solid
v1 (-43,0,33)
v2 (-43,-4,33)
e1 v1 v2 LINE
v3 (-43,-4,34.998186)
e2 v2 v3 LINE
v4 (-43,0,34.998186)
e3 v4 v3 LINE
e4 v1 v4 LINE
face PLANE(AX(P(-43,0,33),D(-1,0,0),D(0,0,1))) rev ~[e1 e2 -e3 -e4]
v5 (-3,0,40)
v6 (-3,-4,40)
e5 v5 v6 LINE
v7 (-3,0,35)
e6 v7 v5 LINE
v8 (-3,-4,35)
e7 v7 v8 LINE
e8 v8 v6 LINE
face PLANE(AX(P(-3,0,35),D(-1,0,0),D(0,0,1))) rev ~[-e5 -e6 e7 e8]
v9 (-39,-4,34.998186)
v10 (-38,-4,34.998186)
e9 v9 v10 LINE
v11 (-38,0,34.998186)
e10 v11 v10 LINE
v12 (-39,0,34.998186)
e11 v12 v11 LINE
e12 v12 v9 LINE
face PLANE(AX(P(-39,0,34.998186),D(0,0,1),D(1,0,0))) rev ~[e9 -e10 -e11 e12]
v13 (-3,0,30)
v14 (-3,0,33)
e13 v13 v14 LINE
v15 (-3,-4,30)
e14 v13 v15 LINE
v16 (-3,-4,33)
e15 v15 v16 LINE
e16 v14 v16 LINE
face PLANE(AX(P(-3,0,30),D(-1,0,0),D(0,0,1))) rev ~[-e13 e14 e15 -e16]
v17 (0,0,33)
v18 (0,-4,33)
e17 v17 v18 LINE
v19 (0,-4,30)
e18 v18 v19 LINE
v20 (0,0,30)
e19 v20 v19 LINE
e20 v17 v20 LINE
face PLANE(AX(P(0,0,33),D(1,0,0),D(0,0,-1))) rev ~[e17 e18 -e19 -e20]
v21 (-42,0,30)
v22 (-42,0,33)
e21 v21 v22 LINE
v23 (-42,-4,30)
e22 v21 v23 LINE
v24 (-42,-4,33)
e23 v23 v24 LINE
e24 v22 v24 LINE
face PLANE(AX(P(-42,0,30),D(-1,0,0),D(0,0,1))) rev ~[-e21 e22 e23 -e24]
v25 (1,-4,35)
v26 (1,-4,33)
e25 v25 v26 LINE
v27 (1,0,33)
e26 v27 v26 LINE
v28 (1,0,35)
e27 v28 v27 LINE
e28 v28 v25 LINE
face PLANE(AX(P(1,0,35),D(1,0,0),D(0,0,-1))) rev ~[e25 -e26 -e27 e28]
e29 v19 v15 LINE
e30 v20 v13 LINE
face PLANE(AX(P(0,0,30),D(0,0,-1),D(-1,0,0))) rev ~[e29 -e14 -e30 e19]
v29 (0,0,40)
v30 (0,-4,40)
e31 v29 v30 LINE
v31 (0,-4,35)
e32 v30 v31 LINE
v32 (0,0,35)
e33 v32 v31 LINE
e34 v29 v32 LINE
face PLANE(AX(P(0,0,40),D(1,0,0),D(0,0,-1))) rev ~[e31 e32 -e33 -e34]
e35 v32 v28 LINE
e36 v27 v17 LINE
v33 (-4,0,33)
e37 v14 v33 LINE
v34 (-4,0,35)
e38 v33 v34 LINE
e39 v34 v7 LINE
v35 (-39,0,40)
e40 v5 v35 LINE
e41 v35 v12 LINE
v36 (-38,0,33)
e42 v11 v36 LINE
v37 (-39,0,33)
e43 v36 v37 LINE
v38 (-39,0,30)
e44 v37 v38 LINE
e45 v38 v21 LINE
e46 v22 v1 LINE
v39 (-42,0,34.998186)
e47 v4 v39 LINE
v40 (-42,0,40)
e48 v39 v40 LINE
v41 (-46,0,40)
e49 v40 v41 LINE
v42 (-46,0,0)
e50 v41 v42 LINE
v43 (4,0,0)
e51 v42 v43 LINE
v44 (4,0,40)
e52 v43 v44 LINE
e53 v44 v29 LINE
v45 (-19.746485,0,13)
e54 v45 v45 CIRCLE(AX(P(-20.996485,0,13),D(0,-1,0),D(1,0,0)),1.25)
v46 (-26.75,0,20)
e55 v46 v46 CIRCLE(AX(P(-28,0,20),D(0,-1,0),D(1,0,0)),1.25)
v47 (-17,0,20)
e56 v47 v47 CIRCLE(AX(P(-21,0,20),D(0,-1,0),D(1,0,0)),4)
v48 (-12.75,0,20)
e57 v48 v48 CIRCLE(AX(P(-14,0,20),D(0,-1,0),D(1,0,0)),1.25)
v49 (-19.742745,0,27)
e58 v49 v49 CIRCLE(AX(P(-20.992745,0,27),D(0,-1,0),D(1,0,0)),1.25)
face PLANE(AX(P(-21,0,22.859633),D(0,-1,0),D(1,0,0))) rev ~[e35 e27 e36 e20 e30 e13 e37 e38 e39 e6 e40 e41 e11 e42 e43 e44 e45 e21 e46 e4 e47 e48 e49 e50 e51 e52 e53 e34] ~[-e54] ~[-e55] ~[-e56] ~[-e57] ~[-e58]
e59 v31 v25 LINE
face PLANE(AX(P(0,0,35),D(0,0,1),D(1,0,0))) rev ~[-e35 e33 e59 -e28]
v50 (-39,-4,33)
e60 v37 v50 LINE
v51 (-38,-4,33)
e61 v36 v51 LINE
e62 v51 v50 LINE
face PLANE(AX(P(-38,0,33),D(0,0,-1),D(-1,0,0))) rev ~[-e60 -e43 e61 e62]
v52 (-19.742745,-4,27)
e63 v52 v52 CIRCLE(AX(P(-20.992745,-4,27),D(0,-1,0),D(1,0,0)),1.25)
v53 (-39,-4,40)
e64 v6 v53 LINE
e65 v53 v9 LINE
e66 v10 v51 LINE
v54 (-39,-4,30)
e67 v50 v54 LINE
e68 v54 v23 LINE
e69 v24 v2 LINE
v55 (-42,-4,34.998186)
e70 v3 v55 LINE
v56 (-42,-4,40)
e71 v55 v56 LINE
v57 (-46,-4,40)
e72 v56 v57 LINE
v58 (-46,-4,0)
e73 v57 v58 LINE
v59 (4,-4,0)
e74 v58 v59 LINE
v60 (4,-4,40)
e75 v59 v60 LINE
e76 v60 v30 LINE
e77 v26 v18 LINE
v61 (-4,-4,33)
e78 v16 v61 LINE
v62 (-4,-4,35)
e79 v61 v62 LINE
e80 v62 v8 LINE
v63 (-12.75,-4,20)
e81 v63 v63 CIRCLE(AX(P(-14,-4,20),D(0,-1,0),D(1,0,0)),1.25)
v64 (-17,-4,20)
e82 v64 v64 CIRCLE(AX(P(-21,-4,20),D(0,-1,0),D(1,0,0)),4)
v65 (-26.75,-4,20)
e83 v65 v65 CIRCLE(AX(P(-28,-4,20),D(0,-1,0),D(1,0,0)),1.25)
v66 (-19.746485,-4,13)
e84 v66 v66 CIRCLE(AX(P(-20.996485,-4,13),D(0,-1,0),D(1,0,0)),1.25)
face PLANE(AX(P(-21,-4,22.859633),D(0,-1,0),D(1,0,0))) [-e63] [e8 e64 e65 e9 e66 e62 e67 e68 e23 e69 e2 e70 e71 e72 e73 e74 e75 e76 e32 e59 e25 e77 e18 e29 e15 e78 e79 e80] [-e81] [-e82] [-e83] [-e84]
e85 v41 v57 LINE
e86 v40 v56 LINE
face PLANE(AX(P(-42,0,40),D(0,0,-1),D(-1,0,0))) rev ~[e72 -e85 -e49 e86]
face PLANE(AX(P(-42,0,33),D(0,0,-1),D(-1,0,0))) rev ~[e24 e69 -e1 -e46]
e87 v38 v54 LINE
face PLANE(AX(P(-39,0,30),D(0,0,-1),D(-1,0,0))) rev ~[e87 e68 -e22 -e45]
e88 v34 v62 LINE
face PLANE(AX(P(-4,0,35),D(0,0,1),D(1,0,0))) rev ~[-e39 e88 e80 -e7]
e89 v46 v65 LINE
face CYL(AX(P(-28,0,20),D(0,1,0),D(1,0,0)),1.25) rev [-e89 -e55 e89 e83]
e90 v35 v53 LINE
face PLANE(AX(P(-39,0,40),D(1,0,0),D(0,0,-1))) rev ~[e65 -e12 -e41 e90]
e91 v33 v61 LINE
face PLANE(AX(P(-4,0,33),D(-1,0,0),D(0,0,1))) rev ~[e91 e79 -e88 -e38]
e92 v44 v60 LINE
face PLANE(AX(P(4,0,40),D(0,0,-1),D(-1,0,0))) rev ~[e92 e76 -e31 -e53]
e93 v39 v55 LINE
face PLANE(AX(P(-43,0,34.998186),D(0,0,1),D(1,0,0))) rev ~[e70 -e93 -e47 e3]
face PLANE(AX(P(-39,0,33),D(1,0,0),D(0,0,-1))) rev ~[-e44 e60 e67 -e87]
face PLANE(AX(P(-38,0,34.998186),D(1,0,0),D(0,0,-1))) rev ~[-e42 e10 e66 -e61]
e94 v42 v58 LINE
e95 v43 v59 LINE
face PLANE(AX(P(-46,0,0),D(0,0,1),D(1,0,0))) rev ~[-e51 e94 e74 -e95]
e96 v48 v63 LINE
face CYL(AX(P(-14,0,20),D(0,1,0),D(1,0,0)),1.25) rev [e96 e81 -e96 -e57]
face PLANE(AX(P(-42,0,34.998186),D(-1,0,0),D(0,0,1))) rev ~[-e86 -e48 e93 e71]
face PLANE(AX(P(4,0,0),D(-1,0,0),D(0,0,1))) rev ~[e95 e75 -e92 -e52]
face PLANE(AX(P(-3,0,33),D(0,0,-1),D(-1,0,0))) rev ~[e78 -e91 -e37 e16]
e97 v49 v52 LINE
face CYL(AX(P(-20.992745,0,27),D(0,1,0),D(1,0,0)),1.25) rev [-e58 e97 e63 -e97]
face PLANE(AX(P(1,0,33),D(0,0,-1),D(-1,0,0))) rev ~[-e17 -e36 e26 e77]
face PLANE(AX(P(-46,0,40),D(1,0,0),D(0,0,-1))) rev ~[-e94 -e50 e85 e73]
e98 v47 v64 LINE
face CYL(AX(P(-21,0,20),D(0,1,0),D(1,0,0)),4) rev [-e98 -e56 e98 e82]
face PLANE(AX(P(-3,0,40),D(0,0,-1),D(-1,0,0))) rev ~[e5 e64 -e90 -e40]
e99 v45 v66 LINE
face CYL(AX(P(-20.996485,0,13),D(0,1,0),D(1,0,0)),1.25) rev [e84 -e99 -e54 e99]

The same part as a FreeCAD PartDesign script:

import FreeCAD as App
import Part
import Sketcher
from FreeCAD import Vector

doc = App.newDocument("Part")
body = doc.addObject("PartDesign::Body", "Body")

# Sketch on XZ plane
sketch1 = body.newObject("Sketcher::SketchObject", "Sketch")
sketch1.AttachmentSupport = (doc.getObject("XZ_Plane"), [""])
sketch1.MapMode = "FlatFace"
sketch1.addGeometry(Part.LineSegment(Vector(-42, 40, 0), Vector(-46, 40, 0)), False)
sketch1.addGeometry(Part.LineSegment(Vector(-46, 40, 0), Vector(-46, 0, 0)), False)
sketch1.addGeometry(Part.LineSegment(Vector(-46, 0, 0), Vector(4, 0, 0)), False)
sketch1.addGeometry(Part.LineSegment(Vector(4, 0, 0), Vector(4, 40, 0)), False)
sketch1.addGeometry(Part.LineSegment(Vector(4, 40, 0), Vector(0, 40, 0)), False)
sketch1.addGeometry(Part.LineSegment(Vector(0, 40, 0), Vector(0, 35, 0)), False)
sketch1.addGeometry(Part.LineSegment(Vector(0, 35, 0), Vector(1, 35, 0)), False)
sketch1.addGeometry(Part.LineSegment(Vector(1, 35, 0), Vector(1, 33, 0)), False)
sketch1.addGeometry(Part.LineSegment(Vector(1, 33, 0), Vector(0, 33, 0)), False)
sketch1.addGeometry(Part.LineSegment(Vector(0, 33, 0), Vector(0, 30, 0)), False)
sketch1.addGeometry(Part.LineSegment(Vector(0, 30, 0), Vector(-3, 30, 0)), False)
sketch1.addGeometry(Part.LineSegment(Vector(-3, 30, 0), Vector(-3, 33, 0)), False)
sketch1.addGeometry(Part.LineSegment(Vector(-3, 33, 0), Vector(-4, 33, 0)), False)
sketch1.addGeometry(Part.LineSegment(Vector(-4, 33, 0), Vector(-4, 35, 0)), False)
sketch1.addGeometry(Part.LineSegment(Vector(-4, 35, 0), Vector(-3, 35, 0)), False)
sketch1.addGeometry(Part.LineSegment(Vector(-3, 35, 0), Vector(-3, 40, 0)), False)
sketch1.addGeometry(Part.LineSegment(Vector(-3, 40, 0), Vector(-39, 40, 0)), False)
sketch1.addGeometry(Part.LineSegment(Vector(-39, 40, 0), Vector(-39, 35, 0)), False)
sketch1.addGeometry(Part.LineSegment(Vector(-39, 35, 0), Vector(-38, 35, 0)), False)
sketch1.addGeometry(Part.LineSegment(Vector(-38, 35, 0), Vector(-38, 33, 0)), False)
sketch1.addGeometry(Part.LineSegment(Vector(-38, 33, 0), Vector(-39, 33, 0)), False)
sketch1.addGeometry(Part.LineSegment(Vector(-39, 33, 0), Vector(-39, 30, 0)), False)
sketch1.addGeometry(Part.LineSegment(Vector(-39, 30, 0), Vector(-42, 30, 0)), False)
sketch1.addGeometry(Part.LineSegment(Vector(-42, 30, 0), Vector(-42, 33, 0)), False)
sketch1.addGeometry(Part.LineSegment(Vector(-42, 33, 0), Vector(-43, 33, 0)), False)
sketch1.addGeometry(Part.LineSegment(Vector(-43, 33, 0), Vector(-43, 35, 0)), False)
sketch1.addGeometry(Part.LineSegment(Vector(-43, 35, 0), Vector(-42, 35, 0)), False)
sketch1.addGeometry(Part.LineSegment(Vector(-42, 35, 0), Vector(-42, 40, 0)), False)
sketch1.addGeometry(Part.Circle(Vector(-21, 13, 0), Vector(0, 0, 1), 1.2), False)
sketch1.addGeometry(Part.Circle(Vector(-28, 20, 0), Vector(0, 0, 1), 1.2), False)
sketch1.addGeometry(Part.Circle(Vector(-21, 20, 0), Vector(0, 0, 1), 4), False)
sketch1.addGeometry(Part.Circle(Vector(-14, 20, 0), Vector(0, 0, 1), 1.2), False)
sketch1.addGeometry(Part.Circle(Vector(-21, 27, 0), Vector(0, 0, 1), 1.2), False)
sketch1.addConstraint(Sketcher.Constraint("Coincident", 0, 2, 1, 1))
sketch1.addConstraint(Sketcher.Constraint("Coincident", 1, 2, 2, 1))
sketch1.addConstraint(Sketcher.Constraint("Coincident", 2, 2, 3, 1))
sketch1.addConstraint(Sketcher.Constraint("Coincident", 3, 2, 4, 1))
sketch1.addConstraint(Sketcher.Constraint("Coincident", 4, 2, 5, 1))
sketch1.addConstraint(Sketcher.Constraint("Coincident", 5, 2, 6, 1))
sketch1.addConstraint(Sketcher.Constraint("Coincident", 6, 2, 7, 1))
sketch1.addConstraint(Sketcher.Constraint("Coincident", 7, 2, 8, 1))
sketch1.addConstraint(Sketcher.Constraint("Coincident", 8, 2, 9, 1))
sketch1.addConstraint(Sketcher.Constraint("Coincident", 9, 2, 10, 1))
sketch1.addConstraint(Sketcher.Constraint("Coincident", 10, 2, 11, 1))
sketch1.addConstraint(Sketcher.Constraint("Coincident", 11, 2, 12, 1))
sketch1.addConstraint(Sketcher.Constraint("Coincident", 12, 2, 13, 1))
sketch1.addConstraint(Sketcher.Constraint("Coincident", 13, 2, 14, 1))
sketch1.addConstraint(Sketcher.Constraint("Coincident", 14, 2, 15, 1))
sketch1.addConstraint(Sketcher.Constraint("Coincident", 15, 2, 16, 1))
sketch1.addConstraint(Sketcher.Constraint("Coincident", 16, 2, 17, 1))
sketch1.addConstraint(Sketcher.Constraint("Coincident", 17, 2, 18, 1))
sketch1.addConstraint(Sketcher.Constraint("Coincident", 18, 2, 19, 1))
sketch1.addConstraint(Sketcher.Constraint("Coincident", 19, 2, 20, 1))
sketch1.addConstraint(Sketcher.Constraint("Coincident", 20, 2, 21, 1))
sketch1.addConstraint(Sketcher.Constraint("Coincident", 21, 2, 22, 1))
sketch1.addConstraint(Sketcher.Constraint("Coincident", 22, 2, 23, 1))
sketch1.addConstraint(Sketcher.Constraint("Coincident", 23, 2, 24, 1))
sketch1.addConstraint(Sketcher.Constraint("Coincident", 24, 2, 25, 1))
sketch1.addConstraint(Sketcher.Constraint("Coincident", 25, 2, 26, 1))
sketch1.addConstraint(Sketcher.Constraint("Coincident", 26, 2, 27, 1))
sketch1.addConstraint(Sketcher.Constraint("Coincident", 27, 2, 0, 1))
sketch1.addConstraint(Sketcher.Constraint("Horizontal", 0))
sketch1.addConstraint(Sketcher.Constraint("Vertical", 1))
sketch1.addConstraint(Sketcher.Constraint("Horizontal", 2))
sketch1.addConstraint(Sketcher.Constraint("Vertical", 3))
sketch1.addConstraint(Sketcher.Constraint("Horizontal", 4))
sketch1.addConstraint(Sketcher.Constraint("Vertical", 5))
sketch1.addConstraint(Sketcher.Constraint("Horizontal", 6))
sketch1.addConstraint(Sketcher.Constraint("Vertical", 7))
sketch1.addConstraint(Sketcher.Constraint("Horizontal", 8))
sketch1.addConstraint(Sketcher.Constraint("Vertical", 9))
sketch1.addConstraint(Sketcher.Constraint("Horizontal", 10))
sketch1.addConstraint(Sketcher.Constraint("Vertical", 11))
sketch1.addConstraint(Sketcher.Constraint("Horizontal", 12))
sketch1.addConstraint(Sketcher.Constraint("Vertical", 13))
sketch1.addConstraint(Sketcher.Constraint("Horizontal", 14))
sketch1.addConstraint(Sketcher.Constraint("Vertical", 15))
sketch1.addConstraint(Sketcher.Constraint("Horizontal", 16))
sketch1.addConstraint(Sketcher.Constraint("Vertical", 17))
sketch1.addConstraint(Sketcher.Constraint("Horizontal", 18))
sketch1.addConstraint(Sketcher.Constraint("Vertical", 19))
sketch1.addConstraint(Sketcher.Constraint("Horizontal", 20))
sketch1.addConstraint(Sketcher.Constraint("Vertical", 21))
sketch1.addConstraint(Sketcher.Constraint("Horizontal", 22))
sketch1.addConstraint(Sketcher.Constraint("Vertical", 23))
sketch1.addConstraint(Sketcher.Constraint("Horizontal", 24))
sketch1.addConstraint(Sketcher.Constraint("Vertical", 25))
sketch1.addConstraint(Sketcher.Constraint("Horizontal", 26))
sketch1.addConstraint(Sketcher.Constraint("Vertical", 27))
sketch1.addConstraint(Sketcher.Constraint("Equal", 28, 29))
sketch1.addConstraint(Sketcher.Constraint("Equal", 29, 31))
sketch1.addConstraint(Sketcher.Constraint("Equal", 31, 32))
sketch1.addConstraint(Sketcher.Constraint("PointOnObject", 1, 2, -1))
sketch1.addConstraint(Sketcher.Constraint("PointOnObject", 4, 2, -2))
sketch1.addConstraint(Sketcher.Constraint("PointOnObject", 8, 2, -2))
sketch1.addConstraint(Sketcher.Constraint("Horizontal", 29, 3, 30, 3))
sketch1.addConstraint(Sketcher.Constraint("Horizontal", 30, 3, 31, 3))
sketch1.addConstraint(Sketcher.Constraint("Horizontal", 0, 2, 3, 2))
sketch1.addConstraint(Sketcher.Constraint("Horizontal", 8, 2, 11, 2))
sketch1.addConstraint(Sketcher.Constraint("Horizontal", 6, 2, 13, 2))
sketch1.addConstraint(Sketcher.Constraint("Horizontal", 4, 2, 15, 2))
sketch1.addConstraint(Sketcher.Constraint("Horizontal", 12, 2, 19, 2))
sketch1.addConstraint(Sketcher.Constraint("Horizontal", 10, 2, 21, 2))
sketch1.addConstraint(Sketcher.Constraint("Horizontal", 20, 2, 23, 2))
sketch1.addConstraint(Sketcher.Constraint("Horizontal", 18, 2, 25, 2))
sketch1.addConstraint(Sketcher.Constraint("Vertical", 11, 2, 14, 2))
sketch1.addConstraint(Sketcher.Constraint("Vertical", 17, 2, 20, 2))
sketch1.addConstraint(Sketcher.Constraint("Vertical", 23, 2, 26, 2))
sketch1.addConstraint(Sketcher.Constraint("Equal", 0, 4))
sketch1.addConstraint(Sketcher.Constraint("Equal", 8, 12))
sketch1.addConstraint(Sketcher.Constraint("Equal", 14, 18))
sketch1.addConstraint(Sketcher.Constraint("Equal", 10, 22))
sketch1.addConstraint(Sketcher.Constraint("Equal", 20, 24))
sketch1.addConstraint(Sketcher.Constraint("Equal", 22, 9))
sketch1.addConstraint(Sketcher.Constraint("Diameter", 30, 8.0))
sketch1.addConstraint(Sketcher.Constraint("Diameter", 28, 2.5))
sketch1.addConstraint(Sketcher.Constraint("DistanceX", 0, 2, 0, 1, 4.0))
sketch1.addConstraint(Sketcher.Constraint("DistanceX", 2, 1, 2, 2, 50.0))
sketch1.addConstraint(Sketcher.Constraint("DistanceX", 6, 1, 6, 2, 1.0))
sketch1.addConstraint(Sketcher.Constraint("DistanceX", 10, 2, 10, 1, 3.0))
sketch1.addConstraint(Sketcher.Constraint("DistanceY", 1, 2, 1, 1, 40.0))
sketch1.addConstraint(Sketcher.Constraint("DistanceY", 5, 2, 5, 1, 5.0))
sketch1.addConstraint(Sketcher.Constraint("DistanceY", 7, 2, 7, 1, 2.0))
sketch1.addConstraint(Sketcher.Constraint("DistanceY", -1, 1, 28, 3, 13.0))
sketch1.addConstraint(Sketcher.Constraint("DistanceX", 29, 3, -1, 1, 28.0))
sketch1.addConstraint(Sketcher.Constraint("DistanceY", -1, 1, 29, 3, 20.0))
sketch1.addConstraint(Sketcher.Constraint("DistanceX", 30, 3, -1, 1, 21.0))
sketch1.addConstraint(Sketcher.Constraint("DistanceX", 31, 3, -1, 1, 14.0))
sketch1.addConstraint(Sketcher.Constraint("DistanceY", -1, 1, 32, 3, 27.0))
sketch1.addConstraint(Sketcher.Constraint("DistanceY", 17, 2, 17, 1, 5.001814))
sketch1.addConstraint(Sketcher.Constraint("DistanceX", 28, 3, 32, 3, 0.00374))
sketch1.addConstraint(Sketcher.Constraint("DistanceX", 28, 3, -1, 1, 20.996485))
pad1 = body.newObject("PartDesign::Pad", "Pad")
pad1.Profile = sketch1
pad1.Length = 4

doc.recompute()
